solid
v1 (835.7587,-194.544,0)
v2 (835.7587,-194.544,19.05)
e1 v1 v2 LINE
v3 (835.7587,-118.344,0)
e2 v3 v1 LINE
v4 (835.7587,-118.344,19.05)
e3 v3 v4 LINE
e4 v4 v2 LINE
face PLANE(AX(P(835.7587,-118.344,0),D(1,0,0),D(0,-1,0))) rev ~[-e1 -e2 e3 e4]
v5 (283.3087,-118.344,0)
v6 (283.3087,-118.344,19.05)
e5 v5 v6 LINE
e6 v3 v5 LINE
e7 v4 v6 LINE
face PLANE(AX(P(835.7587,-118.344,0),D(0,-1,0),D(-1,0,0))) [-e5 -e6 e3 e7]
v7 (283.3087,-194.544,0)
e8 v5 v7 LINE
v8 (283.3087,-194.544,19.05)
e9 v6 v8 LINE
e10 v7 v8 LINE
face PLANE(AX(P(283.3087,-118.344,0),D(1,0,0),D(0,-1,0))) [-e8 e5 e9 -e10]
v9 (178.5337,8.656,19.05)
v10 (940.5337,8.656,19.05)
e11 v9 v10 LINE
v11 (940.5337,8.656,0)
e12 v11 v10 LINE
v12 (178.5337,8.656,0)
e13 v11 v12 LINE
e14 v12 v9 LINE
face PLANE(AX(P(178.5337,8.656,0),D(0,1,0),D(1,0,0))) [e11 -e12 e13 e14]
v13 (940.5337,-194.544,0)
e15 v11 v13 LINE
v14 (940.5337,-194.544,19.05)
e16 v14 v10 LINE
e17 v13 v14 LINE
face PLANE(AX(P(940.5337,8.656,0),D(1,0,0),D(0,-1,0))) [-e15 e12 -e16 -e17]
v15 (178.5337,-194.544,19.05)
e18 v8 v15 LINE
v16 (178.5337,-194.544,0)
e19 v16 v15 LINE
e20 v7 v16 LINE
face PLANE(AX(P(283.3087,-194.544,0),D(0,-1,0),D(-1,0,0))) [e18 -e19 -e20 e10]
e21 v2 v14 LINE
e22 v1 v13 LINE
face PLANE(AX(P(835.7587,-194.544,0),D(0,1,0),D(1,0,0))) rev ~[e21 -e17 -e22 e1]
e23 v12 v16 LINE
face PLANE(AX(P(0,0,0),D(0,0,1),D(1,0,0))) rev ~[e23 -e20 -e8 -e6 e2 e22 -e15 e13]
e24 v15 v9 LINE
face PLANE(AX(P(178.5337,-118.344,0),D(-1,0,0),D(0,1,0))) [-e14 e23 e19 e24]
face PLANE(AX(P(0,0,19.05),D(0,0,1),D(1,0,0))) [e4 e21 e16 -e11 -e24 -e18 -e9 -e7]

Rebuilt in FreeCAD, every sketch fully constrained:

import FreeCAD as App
import Part
import Sketcher

V = App.Vector
Q = App.Units.Quantity


def add_polygon(sketch, points):
    """Adds a closed chain of lines whose ends are joined by coincident constraints."""
    first, n = sketch.GeometryCount, len(points)
    for a, b in zip(points, points[1:] + points[:1]):
        sketch.addGeometry(Part.LineSegment(App.Vector(*a, 0), App.Vector(*b, 0)), False)
    for i in range(n):
        sketch.addConstraint(Sketcher.Constraint("Coincident", first + i, 2, first + (i + 1) % n, 1))

doc = App.newDocument("Part")
body = doc.addObject("PartDesign::Body", "Body")

# Sketch on XY plane
sketch1 = body.newObject("Sketcher::SketchObject", "Sketch")
sketch1.AttachmentSupport = (doc.getObject("XY_Plane"), [""])
sketch1.MapMode = "FlatFace"
add_polygon(sketch1, [(178.5337, 8.656), (178.5337, -194.544), (283.3087, -194.544), (283.3087, -118.344), (835.7587, -118.344), (835.7587, -194.544), (940.5337, -194.544), (940.5337, 8.656)])  # lines 0-7
sketch1.addConstraint([
    Sketcher.Constraint("Vertical", 0),
    Sketcher.Constraint("Horizontal", 1),
    Sketcher.Constraint("Vertical", 2),
    Sketcher.Constraint("Horizontal", 3),
    Sketcher.Constraint("Vertical", 4),
    Sketcher.Constraint("Horizontal", 5),
    Sketcher.Constraint("Vertical", 6),
    Sketcher.Constraint("Horizontal", 7),
    Sketcher.Constraint("Horizontal", 1, 2, 4, 2),
    Sketcher.Constraint("Equal", 1, 5),
    Sketcher.Constraint("DistanceX", 7, 2, 7, 1, Q("30 in")),
    Sketcher.Constraint("DistanceY", 0, 2, 0, 1, Q("8 in")),
    Sketcher.Constraint("DistanceY", 3, 2, 6, 2, Q("5 in")),
    Sketcher.Constraint("DistanceX", 1, 1, 1, 2, Q("4.125 in")),
    Sketcher.Constraint("DistanceX", -1, 1, 0, 2, Q("178.5337 mm")),
    Sketcher.Constraint("DistanceY", 0, 2, -1, 1, Q("194.544 mm")),
])
pad1 = body.newObject("PartDesign::Pad", "Pad")
pad1.Profile = sketch1
pad1.Length = Q("0.75 in")

doc.recompute()
